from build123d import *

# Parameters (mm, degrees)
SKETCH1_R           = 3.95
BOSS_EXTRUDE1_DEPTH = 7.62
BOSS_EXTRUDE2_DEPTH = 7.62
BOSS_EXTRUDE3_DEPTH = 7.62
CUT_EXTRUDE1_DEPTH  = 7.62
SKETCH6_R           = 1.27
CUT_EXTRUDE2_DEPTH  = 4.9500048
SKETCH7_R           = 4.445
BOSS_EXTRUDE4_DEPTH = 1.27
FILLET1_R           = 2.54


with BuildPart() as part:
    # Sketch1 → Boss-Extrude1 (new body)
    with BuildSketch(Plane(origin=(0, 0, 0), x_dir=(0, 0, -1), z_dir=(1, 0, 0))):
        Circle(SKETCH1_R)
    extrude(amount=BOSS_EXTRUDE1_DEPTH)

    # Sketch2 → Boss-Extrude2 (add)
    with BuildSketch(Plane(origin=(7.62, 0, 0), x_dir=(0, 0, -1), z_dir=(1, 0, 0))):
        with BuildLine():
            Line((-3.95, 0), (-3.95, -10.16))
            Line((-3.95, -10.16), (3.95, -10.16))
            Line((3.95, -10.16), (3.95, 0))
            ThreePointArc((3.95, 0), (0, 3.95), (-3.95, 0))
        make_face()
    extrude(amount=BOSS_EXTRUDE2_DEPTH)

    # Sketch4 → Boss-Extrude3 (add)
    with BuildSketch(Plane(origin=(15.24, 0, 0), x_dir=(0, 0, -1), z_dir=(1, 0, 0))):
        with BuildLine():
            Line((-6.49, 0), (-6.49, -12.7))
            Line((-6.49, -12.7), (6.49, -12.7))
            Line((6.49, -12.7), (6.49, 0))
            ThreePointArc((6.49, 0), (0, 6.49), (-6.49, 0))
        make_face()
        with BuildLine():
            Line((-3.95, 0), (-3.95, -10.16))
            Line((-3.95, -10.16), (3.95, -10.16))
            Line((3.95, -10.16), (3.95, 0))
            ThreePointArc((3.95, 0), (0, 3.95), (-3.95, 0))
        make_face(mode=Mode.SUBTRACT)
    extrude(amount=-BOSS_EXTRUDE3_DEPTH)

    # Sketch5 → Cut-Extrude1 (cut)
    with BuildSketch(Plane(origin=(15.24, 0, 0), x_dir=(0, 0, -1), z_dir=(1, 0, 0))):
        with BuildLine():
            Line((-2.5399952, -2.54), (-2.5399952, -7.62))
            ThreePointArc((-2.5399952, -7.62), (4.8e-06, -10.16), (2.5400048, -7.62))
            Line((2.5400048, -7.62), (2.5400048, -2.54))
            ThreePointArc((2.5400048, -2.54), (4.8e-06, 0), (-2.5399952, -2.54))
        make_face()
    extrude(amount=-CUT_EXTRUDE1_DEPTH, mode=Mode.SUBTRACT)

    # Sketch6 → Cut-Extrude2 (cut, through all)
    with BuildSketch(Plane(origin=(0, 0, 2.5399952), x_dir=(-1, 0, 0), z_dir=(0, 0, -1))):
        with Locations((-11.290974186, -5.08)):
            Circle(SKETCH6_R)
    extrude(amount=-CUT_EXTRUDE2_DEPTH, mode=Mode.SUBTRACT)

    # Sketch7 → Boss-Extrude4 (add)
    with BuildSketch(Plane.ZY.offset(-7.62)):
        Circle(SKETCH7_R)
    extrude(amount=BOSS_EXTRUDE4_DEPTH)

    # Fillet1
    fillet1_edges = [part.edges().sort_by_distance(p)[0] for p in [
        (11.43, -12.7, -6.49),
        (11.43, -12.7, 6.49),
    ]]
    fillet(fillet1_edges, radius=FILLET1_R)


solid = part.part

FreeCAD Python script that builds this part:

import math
import FreeCAD as App
import Part
import Sketcher
from FreeCAD import Vector
Q = App.Units.Quantity


def edges_at(feature, points):
    """Names of the edges that pass closest to the given points."""
    edges = feature.Shape.Edges
    near = lambda p: min(range(len(edges)), key=lambda i: edges[i].distToShape(Part.Vertex(*p))[0])
    return sorted({f"Edge{near(p) + 1}" for p in points})

doc = App.newDocument("Part")
body = doc.addObject("PartDesign::Body", "Body")

sketch1 = body.newObject("Sketcher::SketchObject", "Sketch")
sketch1.AttachmentSupport = (doc.getObject("YZ_Plane"), [""])
sketch1.MapMode = "FlatFace"
sketch1.addGeometry(Part.Circle(Vector(0, 0, 0), Vector(0, 0, 1), 3.95), False)
sketch1.addConstraint([
    Sketcher.Constraint("Coincident", 0, 3, -1, 1),
    Sketcher.Constraint("Diameter", 0, Q("7.9 mm")),
])
pad1 = body.newObject("PartDesign::Pad", "Pad")
pad1.Profile = sketch1
pad1.Length = Q("0.3 in")

sketch2 = body.newObject("Sketcher::SketchObject", "Sketch001")
sketch2.AttachmentSupport = (doc.getObject("YZ_Plane"), [""])
sketch2.MapMode = "FlatFace"
sketch2.AttachmentOffset = App.Placement(Vector(0, 0, 0.3 * 25.4), App.Rotation())
sketch2.addGeometry([
    Part.LineSegment(Vector(0, 3.95, 0), Vector(-10.16, 3.95, 0)),
    Part.LineSegment(Vector(-10.16, 3.95, 0), Vector(-10.16, -3.95, 0)),
    Part.LineSegment(Vector(-10.16, -3.95, 0), Vector(0, -3.95, 0)),
    Part.ArcOfCircle(Part.Circle(Vector(0, 0, 0), Vector(0, 0, 1), 3.95), math.radians(-90), math.radians(90)),
], False)
sketch2.addConstraint([
    Sketcher.Constraint("Coincident", 0, 2, 1, 1),
    Sketcher.Constraint("Coincident", 1, 2, 2, 1),
    Sketcher.Constraint("Tangent", 2, 2, 3, 1),
    Sketcher.Constraint("Tangent", 3, 2, 0, 1),
    Sketcher.Constraint("Horizontal", 0),
    Sketcher.Constraint("Vertical", 1),
    Sketcher.Constraint("Horizontal", 2),
    Sketcher.Constraint("Coincident", 3, 3, -1, 1),
    Sketcher.Constraint("DistanceX", 0, 2, 0, 1, Q("0.4 in")),
    Sketcher.Constraint("Radius", 3, Q("3.95 mm")),
])
pad2 = body.newObject("PartDesign::Pad", "Pad001")
pad2.Profile = sketch2
pad2.Length = Q("0.3 in")

sketch3 = body.newObject("Sketcher::SketchObject", "Sketch002")
sketch3.AttachmentSupport = (doc.getObject("YZ_Plane"), [""])
sketch3.MapMode = "FlatFace"
sketch3.AttachmentOffset = App.Placement(Vector(0, 0, 0.6 * 25.4), App.Rotation())
sketch3.addGeometry([
    Part.LineSegment(Vector(0, 6.49, 0), Vector(-12.7, 6.49, 0)),
    Part.LineSegment(Vector(-12.7, 6.49, 0), Vector(-12.7, -6.49, 0)),
    Part.LineSegment(Vector(-12.7, -6.49, 0), Vector(0, -6.49, 0)),
    Part.ArcOfCircle(Part.Circle(Vector(0, 0, 0), Vector(0, 0, 1), 6.49), math.radians(-90), math.radians(90)),
    Part.LineSegment(Vector(-10.16, 3.95, 0), Vector(0, 3.95, 0)),
    Part.ArcOfCircle(Part.Circle(Vector(0, 0, 0), Vector(0, 0, 1), 3.95), math.radians(-90), math.radians(90)),
    Part.LineSegment(Vector(0, -3.95, 0), Vector(-10.16, -3.95, 0)),
    Part.LineSegment(Vector(-10.16, -3.95, 0), Vector(-10.16, 3.95, 0)),
], False)
sketch3.addConstraint([
    Sketcher.Constraint("Coincident", 0, 2, 1, 1),
    Sketcher.Constraint("Coincident", 1, 2, 2, 1),
    Sketcher.Constraint("Tangent", 2, 2, 3, 1),
    Sketcher.Constraint("Tangent", 3, 2, 0, 1),
    Sketcher.Constraint("Tangent", 4, 2, 5, 2),
    Sketcher.Constraint("Tangent", 5, 1, 6, 1),
    Sketcher.Constraint("Coincident", 6, 2, 7, 1),
    Sketcher.Constraint("Coincident", 7, 2, 4, 1),
    Sketcher.Constraint("Horizontal", 0),
    Sketcher.Constraint("Vertical", 1),
    Sketcher.Constraint("Horizontal", 2),
    Sketcher.Constraint("Horizontal", 4),
    Sketcher.Constraint("Horizontal", 6),
    Sketcher.Constraint("Vertical", 7),
    Sketcher.Constraint("Coincident", 3, 3, -1, 1),
    Sketcher.Constraint("Coincident", 5, 3, -1, 1),
    Sketcher.Constraint("DistanceX", 0, 2, 0, 1, Q("0.5 in")),
    Sketcher.Constraint("DistanceX", 4, 1, 4, 2, Q("0.4 in")),
    Sketcher.Constraint("DistanceY", 4, 2, 3, 2, Q("0.1 in")),
    Sketcher.Constraint("Radius", 3, Q("6.49 mm")),
])
pad3 = body.newObject("PartDesign::Pad", "Pad002")
pad3.Profile = sketch3
pad3.Length = Q("0.3 in")
pad3.Reversed = True

sketch4 = body.newObject("Sketcher::SketchObject", "Sketch003")
sketch4.AttachmentSupport = (doc.getObject("YZ_Plane"), [""])
sketch4.MapMode = "FlatFace"
sketch4.AttachmentOffset = App.Placement(Vector(0, 0, 0.6 * 25.4), App.Rotation())
sketch4.addGeometry([
    Part.LineSegment(Vector(-2.54, 2.539995, 0), Vector(-7.62, 2.539995, 0)),
    Part.ArcOfCircle(Part.Circle(Vector(-7.62, -0.000005, 0), Vector(0, 0, 1), 2.54), math.radians(90), math.radians(270)),
    Part.LineSegment(Vector(-7.62, -2.540005, 0), Vector(-2.54, -2.540005, 0)),
    Part.ArcOfCircle(Part.Circle(Vector(-2.54, -0.000005, 0), Vector(0, 0, 1), 2.54), math.radians(-90), math.radians(90)),
], False)
sketch4.addConstraint([
    Sketcher.Constraint("Tangent", 0, 2, 1, 1),
    Sketcher.Constraint("Tangent", 1, 2, 2, 1),
    Sketcher.Constraint("Tangent", 2, 2, 3, 1),
    Sketcher.Constraint("Tangent", 3, 2, 0, 1),
    Sketcher.Constraint("Horizontal", 0),
    Sketcher.Constraint("Horizontal", 2),
    Sketcher.Constraint("Radius", 1, Q("0.1 in")),
    Sketcher.Constraint("DistanceX", 0, 2, 0, 1, Q("0.2 in")),
    Sketcher.Constraint("DistanceX", 1, 3, -1, 1, Q("0.3 in")),
    Sketcher.Constraint("DistanceY", -1, 1, 0, 2, Q("0.0999998 in")),
])
pocket1 = body.newObject("PartDesign::Pocket", "Pocket")
pocket1.Profile = sketch4
pocket1.Length = Q("0.3 in")

sketch5 = body.newObject("Sketcher::SketchObject", "Sketch004")
sketch5.AttachmentSupport = (doc.getObject("XY_Plane"), [""])
sketch5.MapMode = "FlatFace"
sketch5.AttachmentOffset = App.Placement(Vector(0, 0, 0.0999998 * 25.4), App.Rotation())
sketch5.addGeometry(Part.Circle(Vector(11.290974, -5.08, 0), Vector(0, 0, 1), 1.27), False)
sketch5.addConstraint([
    Sketcher.Constraint("Diameter", 0, Q("0.1 in")),
    Sketcher.Constraint("DistanceY", 0, 3, -1, 1, Q("0.2 in")),
    Sketcher.Constraint("DistanceX", -1, 1, 0, 3, Q("11.290974 mm")),
])
pocket2 = body.newObject("PartDesign::Pocket", "Pocket001")
pocket2.Profile = sketch5
pocket2.Type = "ThroughAll"
pocket2.Reversed = True

sketch6 = body.newObject("Sketcher::SketchObject", "Sketch005")
sketch6.AttachmentSupport = (doc.getObject("YZ_Plane"), [""])
sketch6.MapMode = "FlatFace"
sketch6.AttachmentOffset = App.Placement(Vector(0, 0, 0.3 * 25.4), App.Rotation())
sketch6.addGeometry(Part.Circle(Vector(0, 0, 0), Vector(0, 0, 1), 4.445), False)
sketch6.addConstraint([
    Sketcher.Constraint("Coincident", 0, 3, -1, 1),
    Sketcher.Constraint("Diameter", 0, Q("0.35 in")),
])
pad4 = body.newObject("PartDesign::Pad", "Pad003")
pad4.Profile = sketch6
pad4.Length = Q("0.05 in")
pad4.Reversed = True
doc.recompute()

fillet = body.newObject("PartDesign::Fillet", "Fillet")
fillet.Base = (pad4, edges_at(pad4, [(11.43, -12.7, -6.49), (11.43, -12.7, 6.49)]))
fillet.Radius = Q("0.1 in")

doc.recompute()
